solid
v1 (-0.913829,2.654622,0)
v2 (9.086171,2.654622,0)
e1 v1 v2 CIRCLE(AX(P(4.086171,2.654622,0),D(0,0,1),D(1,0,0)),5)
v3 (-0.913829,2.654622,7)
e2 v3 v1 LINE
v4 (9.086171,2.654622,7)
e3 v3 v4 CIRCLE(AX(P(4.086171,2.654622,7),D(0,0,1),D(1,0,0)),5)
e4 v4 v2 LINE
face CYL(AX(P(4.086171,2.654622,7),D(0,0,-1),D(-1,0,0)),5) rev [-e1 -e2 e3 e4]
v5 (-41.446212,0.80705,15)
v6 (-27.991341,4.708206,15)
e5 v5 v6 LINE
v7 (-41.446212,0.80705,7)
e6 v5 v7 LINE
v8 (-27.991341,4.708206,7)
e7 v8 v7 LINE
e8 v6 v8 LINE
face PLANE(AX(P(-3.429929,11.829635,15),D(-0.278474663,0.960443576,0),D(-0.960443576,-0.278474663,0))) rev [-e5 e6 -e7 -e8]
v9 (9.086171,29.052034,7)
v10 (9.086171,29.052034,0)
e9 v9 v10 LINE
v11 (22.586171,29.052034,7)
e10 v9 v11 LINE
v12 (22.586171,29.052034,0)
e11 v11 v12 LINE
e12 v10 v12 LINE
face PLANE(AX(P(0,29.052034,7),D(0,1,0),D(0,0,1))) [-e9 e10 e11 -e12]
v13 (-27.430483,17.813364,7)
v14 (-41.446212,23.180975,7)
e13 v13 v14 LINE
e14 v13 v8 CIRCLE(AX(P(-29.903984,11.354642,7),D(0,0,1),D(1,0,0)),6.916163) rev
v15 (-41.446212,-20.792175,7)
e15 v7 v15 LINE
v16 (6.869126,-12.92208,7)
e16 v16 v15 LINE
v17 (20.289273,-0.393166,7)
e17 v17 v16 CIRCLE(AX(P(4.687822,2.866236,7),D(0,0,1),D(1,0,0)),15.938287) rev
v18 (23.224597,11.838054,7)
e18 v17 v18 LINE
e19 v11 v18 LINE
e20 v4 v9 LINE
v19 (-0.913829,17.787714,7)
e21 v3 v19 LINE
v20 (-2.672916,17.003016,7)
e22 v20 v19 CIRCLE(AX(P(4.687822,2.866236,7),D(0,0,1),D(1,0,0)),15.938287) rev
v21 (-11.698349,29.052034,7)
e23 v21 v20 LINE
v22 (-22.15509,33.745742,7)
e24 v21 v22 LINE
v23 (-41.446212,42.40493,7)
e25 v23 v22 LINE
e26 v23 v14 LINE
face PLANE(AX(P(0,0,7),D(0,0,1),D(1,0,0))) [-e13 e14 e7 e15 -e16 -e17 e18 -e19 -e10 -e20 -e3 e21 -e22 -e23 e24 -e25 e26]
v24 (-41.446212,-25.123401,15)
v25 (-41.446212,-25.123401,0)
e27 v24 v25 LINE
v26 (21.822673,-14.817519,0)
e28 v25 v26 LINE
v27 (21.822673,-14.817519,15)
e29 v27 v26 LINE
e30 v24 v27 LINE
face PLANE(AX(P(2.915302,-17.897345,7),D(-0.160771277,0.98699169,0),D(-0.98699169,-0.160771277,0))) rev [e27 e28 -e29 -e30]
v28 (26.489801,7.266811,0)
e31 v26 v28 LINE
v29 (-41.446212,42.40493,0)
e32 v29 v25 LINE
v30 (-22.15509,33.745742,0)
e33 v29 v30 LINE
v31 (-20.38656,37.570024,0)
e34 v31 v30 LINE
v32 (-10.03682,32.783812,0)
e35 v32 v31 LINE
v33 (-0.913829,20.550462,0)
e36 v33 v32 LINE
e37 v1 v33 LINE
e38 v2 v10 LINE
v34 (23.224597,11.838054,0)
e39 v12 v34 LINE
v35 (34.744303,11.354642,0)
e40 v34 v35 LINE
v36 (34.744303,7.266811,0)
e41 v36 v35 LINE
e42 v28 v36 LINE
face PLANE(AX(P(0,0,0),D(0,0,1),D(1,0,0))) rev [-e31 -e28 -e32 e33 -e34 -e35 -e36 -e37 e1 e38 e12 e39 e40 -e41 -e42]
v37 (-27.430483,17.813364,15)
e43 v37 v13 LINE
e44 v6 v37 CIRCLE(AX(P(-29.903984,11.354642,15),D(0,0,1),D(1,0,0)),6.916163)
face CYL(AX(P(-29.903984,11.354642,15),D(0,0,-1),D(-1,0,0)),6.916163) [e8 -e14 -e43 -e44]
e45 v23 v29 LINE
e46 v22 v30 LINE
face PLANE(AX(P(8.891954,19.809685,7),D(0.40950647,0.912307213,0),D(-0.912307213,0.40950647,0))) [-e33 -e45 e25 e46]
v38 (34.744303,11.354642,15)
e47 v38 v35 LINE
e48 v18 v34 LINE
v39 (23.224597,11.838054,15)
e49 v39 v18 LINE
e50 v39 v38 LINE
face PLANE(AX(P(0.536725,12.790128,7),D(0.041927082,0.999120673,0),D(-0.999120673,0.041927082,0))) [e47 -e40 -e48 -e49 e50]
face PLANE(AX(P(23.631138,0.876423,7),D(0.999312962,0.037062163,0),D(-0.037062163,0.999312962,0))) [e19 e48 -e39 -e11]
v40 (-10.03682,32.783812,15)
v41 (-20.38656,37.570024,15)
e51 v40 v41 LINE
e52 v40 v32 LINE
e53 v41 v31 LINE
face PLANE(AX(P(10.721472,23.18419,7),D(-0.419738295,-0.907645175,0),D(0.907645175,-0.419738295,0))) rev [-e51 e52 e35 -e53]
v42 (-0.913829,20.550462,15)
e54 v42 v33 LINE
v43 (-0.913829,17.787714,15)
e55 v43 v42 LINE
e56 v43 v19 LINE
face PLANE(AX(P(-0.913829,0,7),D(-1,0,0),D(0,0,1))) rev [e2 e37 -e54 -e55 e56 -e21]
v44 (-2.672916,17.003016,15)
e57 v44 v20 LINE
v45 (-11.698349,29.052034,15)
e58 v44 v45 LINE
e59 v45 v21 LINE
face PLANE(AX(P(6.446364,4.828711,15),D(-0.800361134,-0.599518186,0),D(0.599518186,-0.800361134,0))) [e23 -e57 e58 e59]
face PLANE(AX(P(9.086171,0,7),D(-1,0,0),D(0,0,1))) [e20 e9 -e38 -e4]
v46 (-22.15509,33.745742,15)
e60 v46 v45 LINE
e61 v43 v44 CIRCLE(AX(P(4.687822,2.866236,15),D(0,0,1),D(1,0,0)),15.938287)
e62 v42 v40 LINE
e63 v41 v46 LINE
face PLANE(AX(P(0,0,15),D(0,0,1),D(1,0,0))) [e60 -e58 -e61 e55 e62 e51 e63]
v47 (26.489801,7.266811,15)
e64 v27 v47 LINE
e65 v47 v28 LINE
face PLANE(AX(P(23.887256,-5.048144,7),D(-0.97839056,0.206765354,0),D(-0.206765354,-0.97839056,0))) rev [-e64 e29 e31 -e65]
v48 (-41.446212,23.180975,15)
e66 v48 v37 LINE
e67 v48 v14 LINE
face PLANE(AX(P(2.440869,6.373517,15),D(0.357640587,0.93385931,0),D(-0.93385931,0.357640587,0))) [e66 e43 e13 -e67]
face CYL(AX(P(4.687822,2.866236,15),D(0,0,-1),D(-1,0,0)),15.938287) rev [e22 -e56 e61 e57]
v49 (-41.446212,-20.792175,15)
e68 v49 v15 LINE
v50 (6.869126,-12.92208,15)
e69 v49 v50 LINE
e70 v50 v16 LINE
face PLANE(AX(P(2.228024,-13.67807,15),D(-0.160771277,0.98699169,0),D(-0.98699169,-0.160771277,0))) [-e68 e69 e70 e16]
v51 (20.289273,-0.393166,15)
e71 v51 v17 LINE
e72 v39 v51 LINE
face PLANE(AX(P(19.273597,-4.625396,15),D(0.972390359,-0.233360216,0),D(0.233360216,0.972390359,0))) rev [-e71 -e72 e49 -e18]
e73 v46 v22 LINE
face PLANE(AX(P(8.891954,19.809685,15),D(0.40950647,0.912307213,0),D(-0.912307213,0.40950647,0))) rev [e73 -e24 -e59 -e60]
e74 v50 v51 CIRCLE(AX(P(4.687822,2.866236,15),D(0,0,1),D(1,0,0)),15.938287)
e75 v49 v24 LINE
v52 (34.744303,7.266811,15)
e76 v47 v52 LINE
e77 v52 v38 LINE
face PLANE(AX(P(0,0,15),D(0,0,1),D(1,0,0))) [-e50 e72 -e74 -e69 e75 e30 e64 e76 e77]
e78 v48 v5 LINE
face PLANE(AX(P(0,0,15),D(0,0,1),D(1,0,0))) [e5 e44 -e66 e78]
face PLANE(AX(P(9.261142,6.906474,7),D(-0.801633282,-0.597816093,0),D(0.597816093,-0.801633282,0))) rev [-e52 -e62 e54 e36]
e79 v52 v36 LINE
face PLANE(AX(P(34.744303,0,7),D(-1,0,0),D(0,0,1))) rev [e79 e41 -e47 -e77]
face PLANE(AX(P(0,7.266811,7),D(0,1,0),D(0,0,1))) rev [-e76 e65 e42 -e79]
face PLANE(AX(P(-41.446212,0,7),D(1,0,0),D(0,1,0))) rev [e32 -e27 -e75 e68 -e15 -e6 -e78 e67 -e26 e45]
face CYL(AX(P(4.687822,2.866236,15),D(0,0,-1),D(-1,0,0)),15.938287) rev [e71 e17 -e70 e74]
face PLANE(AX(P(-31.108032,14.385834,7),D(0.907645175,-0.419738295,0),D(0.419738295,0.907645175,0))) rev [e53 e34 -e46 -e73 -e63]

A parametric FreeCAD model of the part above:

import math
import FreeCAD as App
import Part
import Sketcher

doc = App.newDocument("Part")
body = doc.addObject("PartDesign::Body", "Body")

sketch1 = doc.addObject("Sketcher::SketchObject", "Sketch")
body.addObject(sketch1)
sketch1.AttachmentSupport = (doc.XY_Plane, [""])
sketch1.MapMode = "FlatFace"
sketch1.addGeometry(Part.LineSegment(App.Vector(34.744303, 11.354642, 0), App.Vector(23.224597, 11.838054, 0)), False)
sketch1.addGeometry(Part.LineSegment(App.Vector(23.224597, 11.838054, 0), App.Vector(22.586171, 29.052034, 0)), False)
sketch1.addGeometry(Part.LineSegment(App.Vector(22.586171, 29.052034, 0), App.Vector(9.086171, 29.052034, 0)), False)
sketch1.addGeometry(Part.LineSegment(App.Vector(9.086171, 29.052034, 0), App.Vector(9.086171, 2.654622, 0)), False)
sketch1.addGeometry(Part.ArcOfCircle(Part.Circle(App.Vector(4.086171, 2.654622, 0), App.Vector(0, 0, 1), 5), math.radians(-90), math.radians(0)), False)
sketch1.addGeometry(Part.ArcOfCircle(Part.Circle(App.Vector(4.086171, 2.654622, 0), App.Vector(0, 0, 1), 5), math.radians(180), math.radians(270)), False)
sketch1.addGeometry(Part.LineSegment(App.Vector(-0.913829, 2.654622, 0), App.Vector(-0.913829, 20.550462, 0)), False)
sketch1.addGeometry(Part.LineSegment(App.Vector(-0.913829, 20.550462, 0), App.Vector(-7.253856, 29.052034, 0)), False)
sketch1.addGeometry(Part.LineSegment(App.Vector(-7.253856, 29.052034, 0), App.Vector(-10.03682, 32.783812, 0)), False)
sketch1.addGeometry(Part.LineSegment(App.Vector(-10.03682, 32.783812, 0), App.Vector(-20.38656, 37.570024, 0)), False)
sketch1.addGeometry(Part.LineSegment(App.Vector(-20.38656, 37.570024, 0), App.Vector(-22.15509, 33.745742, 0)), False)
sketch1.addGeometry(Part.LineSegment(App.Vector(-22.15509, 33.745742, 0), App.Vector(-36.178916, 40.040603, 0)), False)
sketch1.addGeometry(Part.LineSegment(App.Vector(-36.178916, 40.040603, 0), App.Vector(-41.446212, 42.40493, 0)), False)
sketch1.addGeometry(Part.LineSegment(App.Vector(-41.446212, 42.40493, 0), App.Vector(-41.446212, -25.123401, 0)), False)
sketch1.addGeometry(Part.LineSegment(App.Vector(-41.446212, -25.123401, 0), App.Vector(21.822673, -14.817519, 0)), False)
sketch1.addGeometry(Part.LineSegment(App.Vector(21.822673, -14.817519, 0), App.Vector(26.489801, 7.266811, 0)), False)
sketch1.addGeometry(Part.LineSegment(App.Vector(26.489801, 7.266811, 0), App.Vector(34.744303, 7.266811, 0)), False)
sketch1.addGeometry(Part.LineSegment(App.Vector(34.744303, 7.266811, 0), App.Vector(34.744303, 11.354642, 0)), False)
sketch1.addConstraint(Sketcher.Constraint("Coincident", 0, 2, 1, 1))
sketch1.addConstraint(Sketcher.Constraint("Coincident", 1, 2, 2, 1))
sketch1.addConstraint(Sketcher.Constraint("Coincident", 2, 2, 3, 1))
sketch1.addConstraint(Sketcher.Constraint("Tangent", 3, 2, 4, 2))
sketch1.addConstraint(Sketcher.Constraint("Tangent", 4, 1, 5, 2))
sketch1.addConstraint(Sketcher.Constraint("Tangent", 5, 1, 6, 1))
sketch1.addConstraint(Sketcher.Constraint("Coincident", 6, 2, 7, 1))
sketch1.addConstraint(Sketcher.Constraint("Coincident", 7, 2, 8, 1))
sketch1.addConstraint(Sketcher.Constraint("Coincident", 8, 2, 9, 1))
sketch1.addConstraint(Sketcher.Constraint("Coincident", 9, 2, 10, 1))
sketch1.addConstraint(Sketcher.Constraint("Coincident", 10, 2, 11, 1))
sketch1.addConstraint(Sketcher.Constraint("Coincident", 11, 2, 12, 1))
sketch1.addConstraint(Sketcher.Constraint("Coincident", 12, 2, 13, 1))
sketch1.addConstraint(Sketcher.Constraint("Coincident", 13, 2, 14, 1))
sketch1.addConstraint(Sketcher.Constraint("Coincident", 14, 2, 15, 1))
sketch1.addConstraint(Sketcher.Constraint("Coincident", 15, 2, 16, 1))
sketch1.addConstraint(Sketcher.Constraint("Coincident", 16, 2, 17, 1))
sketch1.addConstraint(Sketcher.Constraint("Coincident", 17, 2, 0, 1))
sketch1.addConstraint(Sketcher.Constraint("Horizontal", 2))
sketch1.addConstraint(Sketcher.Constraint("Vertical", 3))
sketch1.addConstraint(Sketcher.Constraint("Vertical", 6))
sketch1.addConstraint(Sketcher.Constraint("Vertical", 13))
sketch1.addConstraint(Sketcher.Constraint("Horizontal", 16))
sketch1.addConstraint(Sketcher.Constraint("Vertical", 17))
sketch1.addConstraint(Sketcher.Constraint("Equal", 4, 5))
sketch1.addConstraint(Sketcher.Constraint("Parallel", 7, 8))
sketch1.addConstraint(Sketcher.Constraint("Perpendicular", 9, 10))
sketch1.addConstraint(Sketcher.Constraint("Parallel", 11, 12))
sketch1.addConstraint(Sketcher.Constraint("Horizontal", 2, 2, 7, 2))
sketch1.addConstraint(Sketcher.Constraint("Vertical", 5, 3, 4, 1))
sketch1.addConstraint(Sketcher.Constraint("Radius", 4, 5.0))
sketch1.addConstraint(Sketcher.Constraint("DistanceX", 2, 2, 2, 1, 13.5))
sketch1.addConstraint(Sketcher.Constraint("DistanceX", 16, 1, 16, 2, 8.254502))
sketch1.addConstraint(Sketcher.Constraint("Distance", 12, 5.7736))
sketch1.addConstraint(Sketcher.Constraint("Distance", 15, 22.572101))
sketch1.addConstraint(Sketcher.Constraint("DistanceY", 6, 1, 6, 2, 17.89584))
sketch1.addConstraint(Sketcher.Constraint("DistanceY", 13, 2, 13, 1, 67.52833))
sketch1.addConstraint(Sketcher.Constraint("DistanceY", 17, 1, 17, 2, 4.087831))
sketch1.addConstraint(Sketcher.Constraint("DistanceY", 13, 2, -1, 1, 25.123401))
sketch1.addConstraint(Sketcher.Constraint("DistanceX", -1, 1, 15, 2, 26.489801))
sketch1.addConstraint(Sketcher.Constraint("DistanceY", 5, 1, 9, 2, 34.915401))
sketch1.addConstraint(Sketcher.Constraint("DistanceX", 3, 2, 14, 2, 12.736502))
sketch1.addConstraint(Sketcher.Constraint("Distance", 9, 11.402848))
sketch1.addConstraint(Sketcher.Constraint("Distance", 10, 4.213411))
sketch1.addConstraint(Sketcher.Constraint("DistanceY", 3, 2, 3, 1, 26.397412))
sketch1.addConstraint(Sketcher.Constraint("DistanceX", -1, 1, 4, 3, 4.086171))
sketch1.addConstraint(Sketcher.Constraint("DistanceX", 8, 2, -1, 1, 10.03682))
sketch1.addConstraint(Sketcher.Constraint("DistanceY", -1, 1, 8, 2, 32.783812))
sketch1.addConstraint(Sketcher.Constraint("DistanceX", 9, 2, -1, 1, 20.38656))
sketch1.addConstraint(Sketcher.Constraint("DistanceY", 14, 2, -1, 1, 14.817519))
sketch1.addConstraint(Sketcher.Constraint("DistanceY", 0, 2, 1, 2, 17.21398))
sketch1.addConstraint(Sketcher.Constraint("DistanceY", 10, 2, 11, 2, 6.294861))
sketch1.addConstraint(Sketcher.Constraint("Distance", 0, 11.529845))
pad1 = doc.addObject("PartDesign::Pad", "Pad")
body.addObject(pad1)
pad1.Profile = sketch1
pad1.Length = 7

sketch2 = doc.addObject("Sketcher::SketchObject", "Sketch001")
body.addObject(sketch2)
sketch2.AttachmentSupport = (doc.XY_Plane, [""])
sketch2.MapMode = "FlatFace"
sketch2.addGeometry(Part.ArcOfCircle(Part.Circle(App.Vector(-29.903984, 11.354642, 0), App.Vector(0, 0, 1), 6.916163), math.radians(0), math.radians(69.044633)), False)
sketch2.addGeometry(Part.LineSegment(App.Vector(-27.430483, 17.813364, 0), App.Vector(-38.380351, 22.006841, 0)), False)
sketch2.addGeometry(Part.LineSegment(App.Vector(-38.380351, 22.006841, 0), App.Vector(-41.446212, 23.180975, 0)), False)
sketch2.addGeometry(Part.LineSegment(App.Vector(-41.446212, 23.180975, 0), App.Vector(-41.446212, 0.80705, 0)), False)
sketch2.addGeometry(Part.LineSegment(App.Vector(-41.446212, 0.80705, 0), App.Vector(-40.950735, 0.95071, 0)), False)
sketch2.addGeometry(Part.LineSegment(App.Vector(-40.950735, 0.95071, 0), App.Vector(-27.991341, 4.708206, 0)), False)
sketch2.addGeometry(Part.ArcOfCircle(Part.Circle(App.Vector(-29.903984, 11.354642, 0), App.Vector(0, 0, 1), 6.916163), math.radians(-73.94578), math.radians(0)), False)
sketch2.addGeometry(Part.LineSegment(App.Vector(-11.698349, 29.052034, 0), App.Vector(-2.672916, 17.003016, 0)), False)
sketch2.addGeometry(Part.ArcOfCircle(Part.Circle(App.Vector(4.687822, 2.866236, 0), App.Vector(0, 0, 1), 15.938287), math.radians(110.576566), math.radians(117.505088)), False)
sketch2.addGeometry(Part.LineSegment(App.Vector(-0.913829, 17.787714, 0), App.Vector(-0.913829, 20.550462, 0)), False)
sketch2.addGeometry(Part.LineSegment(App.Vector(-0.913829, 20.550462, 0), App.Vector(-7.253856, 29.052034, 0)), False)
sketch2.addGeometry(Part.LineSegment(App.Vector(-7.253856, 29.052034, 0), App.Vector(-10.03682, 32.783812, 0)), False)
sketch2.addGeometry(Part.LineSegment(App.Vector(-10.03682, 32.783812, 0), App.Vector(-20.38656, 37.570024, 0)), False)
sketch2.addGeometry(Part.LineSegment(App.Vector(-20.38656, 37.570024, 0), App.Vector(-22.15509, 33.745742, 0)), False)
sketch2.addGeometry(Part.LineSegment(App.Vector(-22.15509, 33.745742, 0), App.Vector(-11.698349, 29.052034, 0)), False)
sketch2.addGeometry(Part.LineSegment(App.Vector(-41.446212, -20.792175, 0), App.Vector(-41.446212, -25.123401, 0)), False)
sketch2.addGeometry(Part.LineSegment(App.Vector(-41.446212, -25.123401, 0), App.Vector(21.822673, -14.817519, 0)), False)
sketch2.addGeometry(Part.LineSegment(App.Vector(21.822673, -14.817519, 0), App.Vector(26.489801, 7.266811, 0)), False)
sketch2.addGeometry(Part.LineSegment(App.Vector(26.489801, 7.266811, 0), App.Vector(34.744303, 7.266811, 0)), False)
sketch2.addGeometry(Part.LineSegment(App.Vector(34.744303, 7.266811, 0), App.Vector(34.744303, 11.354642, 0)), False)
sketch2.addGeometry(Part.LineSegment(App.Vector(34.744303, 11.354642, 0), App.Vector(23.224597, 11.838054, 0)), False)
sketch2.addGeometry(Part.LineSegment(App.Vector(23.224597, 11.838054, 0), App.Vector(20.289273, -0.393166, 0)), False)
sketch2.addGeometry(Part.ArcOfCircle(Part.Circle(App.Vector(4.687821, 2.866236, 0), App.Vector(0, 0, 1), 15.938288), math.radians(-15.189652), math.radians(-11.800313)), False)
sketch2.addGeometry(Part.ArcOfCircle(Part.Circle(App.Vector(4.687822, 2.866236, 0), App.Vector(0, 0, 1), 15.938287), math.radians(-79.362819), math.radians(-15.189653)), False)
sketch2.addGeometry(Part.ArcOfCircle(Part.Circle(App.Vector(4.687822, 2.866236, 0), App.Vector(0, 0, 1), 15.938287), math.radians(-82.133848), math.radians(-79.362818)), False)
sketch2.addGeometry(Part.LineSegment(App.Vector(6.869126, -12.92208, 0), App.Vector(-1.475395, -14.28132, 0)), False)
sketch2.addGeometry(Part.LineSegment(App.Vector(-1.475395, -14.28132, 0), App.Vector(-41.446212, -20.792175, 0)), False)
sketch2.addConstraint(Sketcher.Constraint("Tangent", 0, 2, 1, 1))
sketch2.addConstraint(Sketcher.Constraint("Coincident", 1, 2, 2, 1))
sketch2.addConstraint(Sketcher.Constraint("Coincident", 2, 2, 3, 1))
sketch2.addConstraint(Sketcher.Constraint("Coincident", 3, 2, 4, 1))
sketch2.addConstraint(Sketcher.Constraint("Coincident", 4, 2, 5, 1))
sketch2.addConstraint(Sketcher.Constraint("Coincident", 5, 2, 6, 1))
sketch2.addConstraint(Sketcher.Constraint("Tangent", 6, 2, 0, 1))
sketch2.addConstraint(Sketcher.Constraint("Coincident", 7, 2, 8, 2))
sketch2.addConstraint(Sketcher.Constraint("Coincident", 8, 1, 9, 1))
sketch2.addConstraint(Sketcher.Constraint("Coincident", 9, 2, 10, 1))
sketch2.addConstraint(Sketcher.Constraint("Coincident", 10, 2, 11, 1))
sketch2.addConstraint(Sketcher.Constraint("Coincident", 11, 2, 12, 1))
sketch2.addConstraint(Sketcher.Constraint("Coincident", 12, 2, 13, 1))
sketch2.addConstraint(Sketcher.Constraint("Coincident", 13, 2, 14, 1))
sketch2.addConstraint(Sketcher.Constraint("Coincident", 14, 2, 7, 1))
sketch2.addConstraint(Sketcher.Constraint("Coincident", 15, 2, 16, 1))
sketch2.addConstraint(Sketcher.Constraint("Coincident", 16, 2, 17, 1))
sketch2.addConstraint(Sketcher.Constraint("Coincident", 17, 2, 18, 1))
sketch2.addConstraint(Sketcher.Constraint("Coincident", 18, 2, 19, 1))
sketch2.addConstraint(Sketcher.Constraint("Coincident", 19, 2, 20, 1))
sketch2.addConstraint(Sketcher.Constraint("Coincident", 20, 2, 21, 1))
sketch2.addConstraint(Sketcher.Constraint("Coincident", 21, 2, 22, 2))
sketch2.addConstraint(Sketcher.Constraint("Tangent", 22, 1, 23, 2))
sketch2.addConstraint(Sketcher.Constraint("Tangent", 23, 1, 24, 2))
sketch2.addConstraint(Sketcher.Constraint("Coincident", 24, 1, 25, 1))
sketch2.addConstraint(Sketcher.Constraint("Coincident", 25, 2, 26, 1))
sketch2.addConstraint(Sketcher.Constraint("Coincident", 26, 2, 15, 1))
sketch2.addConstraint(Sketcher.Constraint("Vertical", 3))
sketch2.addConstraint(Sketcher.Constraint("Vertical", 9))
sketch2.addConstraint(Sketcher.Constraint("Vertical", 15))
sketch2.addConstraint(Sketcher.Constraint("Horizontal", 18))
sketch2.addConstraint(Sketcher.Constraint("Vertical", 19))
sketch2.addConstraint(Sketcher.Constraint("Coincident", 22, 3, 8, 3))
sketch2.addConstraint(Sketcher.Constraint("Coincident", 24, 3, 8, 3))
sketch2.addConstraint(Sketcher.Constraint("Equal", 0, 6))
sketch2.addConstraint(Sketcher.Constraint("Equal", 8, 22))
sketch2.addConstraint(Sketcher.Constraint("Parallel", 1, 2))
sketch2.addConstraint(Sketcher.Constraint("Parallel", 4, 5))
sketch2.addConstraint(Sketcher.Constraint("Parallel", 10, 11))
sketch2.addConstraint(Sketcher.Constraint("Perpendicular", 12, 13))
sketch2.addConstraint(Sketcher.Constraint("Parallel", 16, 25))
sketch2.addConstraint(Sketcher.Constraint("Parallel", 25, 26))
sketch2.addConstraint(Sketcher.Constraint("Horizontal", 0, 3, 6, 2))
sketch2.addConstraint(Sketcher.Constraint("Horizontal", 10, 2, 14, 2))
sketch2.addConstraint(Sketcher.Constraint("Horizontal", 6, 2, 19, 2))
sketch2.addConstraint(Sketcher.Constraint("Vertical", 3, 2, 15, 2))
sketch2.addConstraint(Sketcher.Constraint("Radius", 22, 15.938288))
sketch2.addConstraint(Sketcher.Constraint("Distance", 2, 3.283002))
sketch2.addConstraint(Sketcher.Constraint("DistanceX", 18, 1, 18, 2, 8.254502))
sketch2.addConstraint(Sketcher.Constraint("Radius", 0, 6.916163))
sketch2.addConstraint(Sketcher.Constraint("Distance", 17, 22.572101))
sketch2.addConstraint(Sketcher.Constraint("Distance", 25, 8.4545))
sketch2.addConstraint(Sketcher.Constraint("DistanceY", 9, 1, 9, 2, 2.762748))
sketch2.addConstraint(Sketcher.Constraint("DistanceY", 19, 1, 19, 2, 4.087831))
sketch2.addConstraint(Sketcher.Constraint("DistanceY", 15, 2, -1, 1, 25.123401))
sketch2.addConstraint(Sketcher.Constraint("DistanceX", -1, 1, 17, 2, 26.489801))
sketch2.addConstraint(Sketcher.Constraint("DistanceX", 0, 3, 0, 2, 2.4735))
sketch2.addConstraint(Sketcher.Constraint("DistanceY", 6, 3, 1, 2, 10.652199))
sketch2.addConstraint(Sketcher.Constraint("DistanceY", 7, 2, 8, 1, 0.784698))
sketch2.addConstraint(Sketcher.Constraint("DistanceY", 1, 2, 13, 2, 11.738901))
sketch2.addConstraint(Sketcher.Constraint("DistanceX", 8, 1, 16, 2, 22.736502))
sketch2.addConstraint(Sketcher.Constraint("DistanceX", 21, 2, 16, 2, 1.533399))
sketch2.addConstraint(Sketcher.Constraint("DistanceY", 21, 2, 24, 3, 3.259401))
sketch2.addConstraint(Sketcher.Constraint("DistanceY", 23, 1, 24, 3, 15.664399))
sketch2.addConstraint(Sketcher.Constraint("Distance", 12, 11.402848))
sketch2.addConstraint(Sketcher.Constraint("Distance", 13, 4.213411))
sketch2.addConstraint(Sketcher.Constraint("Distance", 21, 12.578508))
sketch2.addConstraint(Sketcher.Constraint("DistanceY", 3, 2, 3, 1, 22.373926))
sketch2.addConstraint(Sketcher.Constraint("DistanceY", 15, 2, 15, 1, 4.331226))
sketch2.addConstraint(Sketcher.Constraint("DistanceY", -1, 1, 0, 3, 11.354642))
sketch2.addConstraint(Sketcher.Constraint("DistanceX", -1, 1, 8, 3, 4.687822))
sketch2.addConstraint(Sketcher.Constraint("DistanceX", 1, 2, -1, 1, 38.380351))
sketch2.addConstraint(Sketcher.Constraint("DistanceY", -1, 1, 4, 2, 0.95071))
sketch2.addConstraint(Sketcher.Constraint("DistanceX", 5, 2, -1, 1, 27.991341))
sketch2.addConstraint(Sketcher.Constraint("DistanceX", 11, 2, -1, 1, 10.03682))
sketch2.addConstraint(Sketcher.Constraint("DistanceY", -1, 1, 11, 2, 32.783812))
sketch2.addConstraint(Sketcher.Constraint("DistanceX", 14, 2, -1, 1, 11.698349))
sketch2.addConstraint(Sketcher.Constraint("DistanceY", 24, 1, -1, 1, 12.92208))
sketch2.addConstraint(Sketcher.Constraint("DistanceX", 10, 2, 7, 2, 4.58094))
sketch2.addConstraint(Sketcher.Constraint("DistanceY", 8, 3, 20, 2, 8.971818))
sketch2.addConstraint(Sketcher.Constraint("DistanceX", 22, 1, 20, 2, 3.155311))
pad2 = doc.addObject("PartDesign::Pad", "Pad001")
body.addObject(pad2)
pad2.Profile = sketch2
pad2.Length = 15

doc.recompute()
